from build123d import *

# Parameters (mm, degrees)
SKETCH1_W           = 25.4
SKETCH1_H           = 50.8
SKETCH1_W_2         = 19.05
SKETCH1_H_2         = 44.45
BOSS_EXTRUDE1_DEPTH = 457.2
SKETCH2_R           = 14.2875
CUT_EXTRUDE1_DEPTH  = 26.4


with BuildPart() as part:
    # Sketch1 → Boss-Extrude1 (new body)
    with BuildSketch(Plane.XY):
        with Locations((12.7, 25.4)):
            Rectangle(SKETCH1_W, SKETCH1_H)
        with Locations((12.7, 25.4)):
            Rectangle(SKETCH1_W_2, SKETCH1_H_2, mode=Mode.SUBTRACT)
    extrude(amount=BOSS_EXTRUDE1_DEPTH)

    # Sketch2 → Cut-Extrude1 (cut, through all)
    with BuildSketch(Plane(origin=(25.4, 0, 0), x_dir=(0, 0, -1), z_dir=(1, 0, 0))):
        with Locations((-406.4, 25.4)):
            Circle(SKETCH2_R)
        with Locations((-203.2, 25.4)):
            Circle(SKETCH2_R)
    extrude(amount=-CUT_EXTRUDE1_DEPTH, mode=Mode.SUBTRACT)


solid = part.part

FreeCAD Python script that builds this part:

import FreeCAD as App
import Part
import Sketcher
from FreeCAD import Vector
Q = App.Units.Quantity


def add_polygon(sketch, points):
    """Adds a closed chain of lines whose ends are joined by coincident constraints."""
    first, n = sketch.GeometryCount, len(points)
    for a, b in zip(points, points[1:] + points[:1]):
        sketch.addGeometry(Part.LineSegment(App.Vector(*a, 0), App.Vector(*b, 0)), False)
    for i in range(n):
        sketch.addConstraint(Sketcher.Constraint("Coincident", first + i, 2, first + (i + 1) % n, 1))

doc = App.newDocument("Part")
body = doc.addObject("PartDesign::Body", "Body")

sketch1 = doc.addObject("Sketcher::SketchObject", "Sketch")
body.addObject(sketch1)
sketch1.AttachmentSupport = (doc.XY_Plane, [""])
sketch1.MapMode = "FlatFace"
add_polygon(sketch1, [(0, 51), (0, 0), (25, 0), (25, 51)])
add_polygon(sketch1, [(22, 3), (3, 3), (3, 48), (22, 48)])
sketch1.addConstraint([
    Sketcher.Constraint("Vertical", 0),
    Sketcher.Constraint("Horizontal", 1),
    Sketcher.Constraint("Vertical", 2),
    Sketcher.Constraint("Horizontal", 3),
    Sketcher.Constraint("Horizontal", 4),
    Sketcher.Constraint("Vertical", 5),
    Sketcher.Constraint("Horizontal", 6),
    Sketcher.Constraint("Vertical", 7),
    Sketcher.Constraint("Coincident", 0, 2, -1, 1),
    Sketcher.Constraint("DistanceX", 1, 1, 1, 2, Q("1 in")),
    Sketcher.Constraint("DistanceY", 0, 2, 0, 1, Q("2 in")),
    Sketcher.Constraint("DistanceX", 4, 2, 4, 1, Q("0.75 in")),
    Sketcher.Constraint("DistanceY", 5, 1, 5, 2, Q("1.75 in")),
    Sketcher.Constraint("DistanceX", -1, 1, 4, 2, Q("0.125 in")),
    Sketcher.Constraint("DistanceY", -1, 1, 4, 2, Q("0.125 in")),
])
pad1 = doc.addObject("PartDesign::Pad", "Pad")
body.addObject(pad1)
pad1.Profile = sketch1
pad1.Length = Q("18 in")

sketch2 = doc.addObject("Sketcher::SketchObject", "Sketch001")
body.addObject(sketch2)
sketch2.AttachmentSupport = (doc.YZ_Plane, [""])
sketch2.MapMode = "FlatFace"
sketch2.AttachmentOffset = App.Placement(Vector(0, 0, 1 * 25.4), App.Rotation())
sketch2.addGeometry([
    Part.Circle(Vector(25, 406, 0), Vector(0, 0, 1), 14),
    Part.Circle(Vector(25, 203, 0), Vector(0, 0, 1), 14),
], False)
sketch2.addConstraint([
    Sketcher.Constraint("Equal", 0, 1),
    Sketcher.Constraint("Vertical", 0, 3, 1, 3),
    Sketcher.Constraint("Diameter", 0, Q("1.125 in")),
    Sketcher.Constraint("DistanceX", -1, 1, 0, 3, Q("1 in")),
    Sketcher.Constraint("DistanceY", -1, 1, 0, 3, Q("16 in")),
    Sketcher.Constraint("DistanceY", -1, 1, 1, 3, Q("8 in")),
])
pocket1 = doc.addObject("PartDesign::Pocket", "Pocket")
body.addObject(pocket1)
pocket1.Profile = sketch2
pocket1.Type = "ThroughAll"

doc.recompute()
